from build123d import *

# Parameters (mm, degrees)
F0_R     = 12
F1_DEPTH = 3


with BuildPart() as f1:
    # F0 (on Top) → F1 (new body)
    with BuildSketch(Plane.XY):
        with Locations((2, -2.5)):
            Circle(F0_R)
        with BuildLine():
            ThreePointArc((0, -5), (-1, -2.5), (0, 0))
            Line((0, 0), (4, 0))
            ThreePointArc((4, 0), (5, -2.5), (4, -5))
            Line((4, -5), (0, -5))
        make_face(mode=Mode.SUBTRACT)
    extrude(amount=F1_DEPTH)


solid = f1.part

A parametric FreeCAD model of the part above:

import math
import FreeCAD as App
import Part
import Sketcher

V = App.Vector
Q = App.Units.Quantity

doc = App.newDocument("Part")
body = doc.addObject("PartDesign::Body", "Body")

sketch1 = body.newObject("Sketcher::SketchObject", "Sketch")
sketch1.AttachmentSupport = (doc.getObject("XY_Plane"), [""])
sketch1.MapMode = "FlatFace"
sketch1.addGeometry(Part.Circle(V(2, -2.5, 0), V(0, 0, 1), 12), False)
sketch1.addGeometry(Part.LineSegment(V(4, -5, 0), V(0, -5, 0)), False)
sketch1.addGeometry(Part.ArcOfCircle(Part.Circle(V(2.6, -2.5, 0), V(0, 0, 1), 3.6), math.radians(136), math.radians(224)), False)
sketch1.addGeometry(Part.LineSegment(V(0, 0, 0), V(4, 0, 0)), False)
sketch1.addGeometry(Part.ArcOfCircle(Part.Circle(V(1.4, -2.5, 0), V(0, 0, 1), 3.6), math.radians(-44), math.radians(44)), False)
sketch1.addConstraint(Sketcher.Constraint("Coincident", 1, 2, 2, 2))
sketch1.addConstraint(Sketcher.Constraint("Coincident", 2, 1, 3, 1))
sketch1.addConstraint(Sketcher.Constraint("Coincident", 3, 2, 4, 2))
sketch1.addConstraint(Sketcher.Constraint("Coincident", 4, 1, 1, 1))
sketch1.addConstraint(Sketcher.Constraint("Horizontal", 1))
sketch1.addConstraint(Sketcher.Constraint("Horizontal", 3))
sketch1.addConstraint(Sketcher.Constraint("Coincident", 2, 1, -1, 1))
sketch1.addConstraint(Sketcher.Constraint("Equal", 2, 4))
sketch1.addConstraint(Sketcher.Constraint("PointOnObject", 1, 2, -2))
sketch1.addConstraint(Sketcher.Constraint("Horizontal", 0, 3, 2, 3))
sketch1.addConstraint(Sketcher.Constraint("Horizontal", 2, 3, 4, 3))
sketch1.addConstraint(Sketcher.Constraint("Diameter", 0, Q("24 mm")))
sketch1.addConstraint(Sketcher.Constraint("DistanceX", 1, 2, 1, 1, Q("4 mm")))
sketch1.addConstraint(Sketcher.Constraint("DistanceX", -1, 1, 0, 3, Q("2 mm")))
sketch1.addConstraint(Sketcher.Constraint("DistanceY", 1, 2, -1, 1, Q("5 mm")))
sketch1.addConstraint(Sketcher.Constraint("Radius", 2, Q("3.625 mm")))
pad1 = body.newObject("PartDesign::Pad", "Pad")
pad1.Profile = sketch1
pad1.Length = 3

doc.recompute()
